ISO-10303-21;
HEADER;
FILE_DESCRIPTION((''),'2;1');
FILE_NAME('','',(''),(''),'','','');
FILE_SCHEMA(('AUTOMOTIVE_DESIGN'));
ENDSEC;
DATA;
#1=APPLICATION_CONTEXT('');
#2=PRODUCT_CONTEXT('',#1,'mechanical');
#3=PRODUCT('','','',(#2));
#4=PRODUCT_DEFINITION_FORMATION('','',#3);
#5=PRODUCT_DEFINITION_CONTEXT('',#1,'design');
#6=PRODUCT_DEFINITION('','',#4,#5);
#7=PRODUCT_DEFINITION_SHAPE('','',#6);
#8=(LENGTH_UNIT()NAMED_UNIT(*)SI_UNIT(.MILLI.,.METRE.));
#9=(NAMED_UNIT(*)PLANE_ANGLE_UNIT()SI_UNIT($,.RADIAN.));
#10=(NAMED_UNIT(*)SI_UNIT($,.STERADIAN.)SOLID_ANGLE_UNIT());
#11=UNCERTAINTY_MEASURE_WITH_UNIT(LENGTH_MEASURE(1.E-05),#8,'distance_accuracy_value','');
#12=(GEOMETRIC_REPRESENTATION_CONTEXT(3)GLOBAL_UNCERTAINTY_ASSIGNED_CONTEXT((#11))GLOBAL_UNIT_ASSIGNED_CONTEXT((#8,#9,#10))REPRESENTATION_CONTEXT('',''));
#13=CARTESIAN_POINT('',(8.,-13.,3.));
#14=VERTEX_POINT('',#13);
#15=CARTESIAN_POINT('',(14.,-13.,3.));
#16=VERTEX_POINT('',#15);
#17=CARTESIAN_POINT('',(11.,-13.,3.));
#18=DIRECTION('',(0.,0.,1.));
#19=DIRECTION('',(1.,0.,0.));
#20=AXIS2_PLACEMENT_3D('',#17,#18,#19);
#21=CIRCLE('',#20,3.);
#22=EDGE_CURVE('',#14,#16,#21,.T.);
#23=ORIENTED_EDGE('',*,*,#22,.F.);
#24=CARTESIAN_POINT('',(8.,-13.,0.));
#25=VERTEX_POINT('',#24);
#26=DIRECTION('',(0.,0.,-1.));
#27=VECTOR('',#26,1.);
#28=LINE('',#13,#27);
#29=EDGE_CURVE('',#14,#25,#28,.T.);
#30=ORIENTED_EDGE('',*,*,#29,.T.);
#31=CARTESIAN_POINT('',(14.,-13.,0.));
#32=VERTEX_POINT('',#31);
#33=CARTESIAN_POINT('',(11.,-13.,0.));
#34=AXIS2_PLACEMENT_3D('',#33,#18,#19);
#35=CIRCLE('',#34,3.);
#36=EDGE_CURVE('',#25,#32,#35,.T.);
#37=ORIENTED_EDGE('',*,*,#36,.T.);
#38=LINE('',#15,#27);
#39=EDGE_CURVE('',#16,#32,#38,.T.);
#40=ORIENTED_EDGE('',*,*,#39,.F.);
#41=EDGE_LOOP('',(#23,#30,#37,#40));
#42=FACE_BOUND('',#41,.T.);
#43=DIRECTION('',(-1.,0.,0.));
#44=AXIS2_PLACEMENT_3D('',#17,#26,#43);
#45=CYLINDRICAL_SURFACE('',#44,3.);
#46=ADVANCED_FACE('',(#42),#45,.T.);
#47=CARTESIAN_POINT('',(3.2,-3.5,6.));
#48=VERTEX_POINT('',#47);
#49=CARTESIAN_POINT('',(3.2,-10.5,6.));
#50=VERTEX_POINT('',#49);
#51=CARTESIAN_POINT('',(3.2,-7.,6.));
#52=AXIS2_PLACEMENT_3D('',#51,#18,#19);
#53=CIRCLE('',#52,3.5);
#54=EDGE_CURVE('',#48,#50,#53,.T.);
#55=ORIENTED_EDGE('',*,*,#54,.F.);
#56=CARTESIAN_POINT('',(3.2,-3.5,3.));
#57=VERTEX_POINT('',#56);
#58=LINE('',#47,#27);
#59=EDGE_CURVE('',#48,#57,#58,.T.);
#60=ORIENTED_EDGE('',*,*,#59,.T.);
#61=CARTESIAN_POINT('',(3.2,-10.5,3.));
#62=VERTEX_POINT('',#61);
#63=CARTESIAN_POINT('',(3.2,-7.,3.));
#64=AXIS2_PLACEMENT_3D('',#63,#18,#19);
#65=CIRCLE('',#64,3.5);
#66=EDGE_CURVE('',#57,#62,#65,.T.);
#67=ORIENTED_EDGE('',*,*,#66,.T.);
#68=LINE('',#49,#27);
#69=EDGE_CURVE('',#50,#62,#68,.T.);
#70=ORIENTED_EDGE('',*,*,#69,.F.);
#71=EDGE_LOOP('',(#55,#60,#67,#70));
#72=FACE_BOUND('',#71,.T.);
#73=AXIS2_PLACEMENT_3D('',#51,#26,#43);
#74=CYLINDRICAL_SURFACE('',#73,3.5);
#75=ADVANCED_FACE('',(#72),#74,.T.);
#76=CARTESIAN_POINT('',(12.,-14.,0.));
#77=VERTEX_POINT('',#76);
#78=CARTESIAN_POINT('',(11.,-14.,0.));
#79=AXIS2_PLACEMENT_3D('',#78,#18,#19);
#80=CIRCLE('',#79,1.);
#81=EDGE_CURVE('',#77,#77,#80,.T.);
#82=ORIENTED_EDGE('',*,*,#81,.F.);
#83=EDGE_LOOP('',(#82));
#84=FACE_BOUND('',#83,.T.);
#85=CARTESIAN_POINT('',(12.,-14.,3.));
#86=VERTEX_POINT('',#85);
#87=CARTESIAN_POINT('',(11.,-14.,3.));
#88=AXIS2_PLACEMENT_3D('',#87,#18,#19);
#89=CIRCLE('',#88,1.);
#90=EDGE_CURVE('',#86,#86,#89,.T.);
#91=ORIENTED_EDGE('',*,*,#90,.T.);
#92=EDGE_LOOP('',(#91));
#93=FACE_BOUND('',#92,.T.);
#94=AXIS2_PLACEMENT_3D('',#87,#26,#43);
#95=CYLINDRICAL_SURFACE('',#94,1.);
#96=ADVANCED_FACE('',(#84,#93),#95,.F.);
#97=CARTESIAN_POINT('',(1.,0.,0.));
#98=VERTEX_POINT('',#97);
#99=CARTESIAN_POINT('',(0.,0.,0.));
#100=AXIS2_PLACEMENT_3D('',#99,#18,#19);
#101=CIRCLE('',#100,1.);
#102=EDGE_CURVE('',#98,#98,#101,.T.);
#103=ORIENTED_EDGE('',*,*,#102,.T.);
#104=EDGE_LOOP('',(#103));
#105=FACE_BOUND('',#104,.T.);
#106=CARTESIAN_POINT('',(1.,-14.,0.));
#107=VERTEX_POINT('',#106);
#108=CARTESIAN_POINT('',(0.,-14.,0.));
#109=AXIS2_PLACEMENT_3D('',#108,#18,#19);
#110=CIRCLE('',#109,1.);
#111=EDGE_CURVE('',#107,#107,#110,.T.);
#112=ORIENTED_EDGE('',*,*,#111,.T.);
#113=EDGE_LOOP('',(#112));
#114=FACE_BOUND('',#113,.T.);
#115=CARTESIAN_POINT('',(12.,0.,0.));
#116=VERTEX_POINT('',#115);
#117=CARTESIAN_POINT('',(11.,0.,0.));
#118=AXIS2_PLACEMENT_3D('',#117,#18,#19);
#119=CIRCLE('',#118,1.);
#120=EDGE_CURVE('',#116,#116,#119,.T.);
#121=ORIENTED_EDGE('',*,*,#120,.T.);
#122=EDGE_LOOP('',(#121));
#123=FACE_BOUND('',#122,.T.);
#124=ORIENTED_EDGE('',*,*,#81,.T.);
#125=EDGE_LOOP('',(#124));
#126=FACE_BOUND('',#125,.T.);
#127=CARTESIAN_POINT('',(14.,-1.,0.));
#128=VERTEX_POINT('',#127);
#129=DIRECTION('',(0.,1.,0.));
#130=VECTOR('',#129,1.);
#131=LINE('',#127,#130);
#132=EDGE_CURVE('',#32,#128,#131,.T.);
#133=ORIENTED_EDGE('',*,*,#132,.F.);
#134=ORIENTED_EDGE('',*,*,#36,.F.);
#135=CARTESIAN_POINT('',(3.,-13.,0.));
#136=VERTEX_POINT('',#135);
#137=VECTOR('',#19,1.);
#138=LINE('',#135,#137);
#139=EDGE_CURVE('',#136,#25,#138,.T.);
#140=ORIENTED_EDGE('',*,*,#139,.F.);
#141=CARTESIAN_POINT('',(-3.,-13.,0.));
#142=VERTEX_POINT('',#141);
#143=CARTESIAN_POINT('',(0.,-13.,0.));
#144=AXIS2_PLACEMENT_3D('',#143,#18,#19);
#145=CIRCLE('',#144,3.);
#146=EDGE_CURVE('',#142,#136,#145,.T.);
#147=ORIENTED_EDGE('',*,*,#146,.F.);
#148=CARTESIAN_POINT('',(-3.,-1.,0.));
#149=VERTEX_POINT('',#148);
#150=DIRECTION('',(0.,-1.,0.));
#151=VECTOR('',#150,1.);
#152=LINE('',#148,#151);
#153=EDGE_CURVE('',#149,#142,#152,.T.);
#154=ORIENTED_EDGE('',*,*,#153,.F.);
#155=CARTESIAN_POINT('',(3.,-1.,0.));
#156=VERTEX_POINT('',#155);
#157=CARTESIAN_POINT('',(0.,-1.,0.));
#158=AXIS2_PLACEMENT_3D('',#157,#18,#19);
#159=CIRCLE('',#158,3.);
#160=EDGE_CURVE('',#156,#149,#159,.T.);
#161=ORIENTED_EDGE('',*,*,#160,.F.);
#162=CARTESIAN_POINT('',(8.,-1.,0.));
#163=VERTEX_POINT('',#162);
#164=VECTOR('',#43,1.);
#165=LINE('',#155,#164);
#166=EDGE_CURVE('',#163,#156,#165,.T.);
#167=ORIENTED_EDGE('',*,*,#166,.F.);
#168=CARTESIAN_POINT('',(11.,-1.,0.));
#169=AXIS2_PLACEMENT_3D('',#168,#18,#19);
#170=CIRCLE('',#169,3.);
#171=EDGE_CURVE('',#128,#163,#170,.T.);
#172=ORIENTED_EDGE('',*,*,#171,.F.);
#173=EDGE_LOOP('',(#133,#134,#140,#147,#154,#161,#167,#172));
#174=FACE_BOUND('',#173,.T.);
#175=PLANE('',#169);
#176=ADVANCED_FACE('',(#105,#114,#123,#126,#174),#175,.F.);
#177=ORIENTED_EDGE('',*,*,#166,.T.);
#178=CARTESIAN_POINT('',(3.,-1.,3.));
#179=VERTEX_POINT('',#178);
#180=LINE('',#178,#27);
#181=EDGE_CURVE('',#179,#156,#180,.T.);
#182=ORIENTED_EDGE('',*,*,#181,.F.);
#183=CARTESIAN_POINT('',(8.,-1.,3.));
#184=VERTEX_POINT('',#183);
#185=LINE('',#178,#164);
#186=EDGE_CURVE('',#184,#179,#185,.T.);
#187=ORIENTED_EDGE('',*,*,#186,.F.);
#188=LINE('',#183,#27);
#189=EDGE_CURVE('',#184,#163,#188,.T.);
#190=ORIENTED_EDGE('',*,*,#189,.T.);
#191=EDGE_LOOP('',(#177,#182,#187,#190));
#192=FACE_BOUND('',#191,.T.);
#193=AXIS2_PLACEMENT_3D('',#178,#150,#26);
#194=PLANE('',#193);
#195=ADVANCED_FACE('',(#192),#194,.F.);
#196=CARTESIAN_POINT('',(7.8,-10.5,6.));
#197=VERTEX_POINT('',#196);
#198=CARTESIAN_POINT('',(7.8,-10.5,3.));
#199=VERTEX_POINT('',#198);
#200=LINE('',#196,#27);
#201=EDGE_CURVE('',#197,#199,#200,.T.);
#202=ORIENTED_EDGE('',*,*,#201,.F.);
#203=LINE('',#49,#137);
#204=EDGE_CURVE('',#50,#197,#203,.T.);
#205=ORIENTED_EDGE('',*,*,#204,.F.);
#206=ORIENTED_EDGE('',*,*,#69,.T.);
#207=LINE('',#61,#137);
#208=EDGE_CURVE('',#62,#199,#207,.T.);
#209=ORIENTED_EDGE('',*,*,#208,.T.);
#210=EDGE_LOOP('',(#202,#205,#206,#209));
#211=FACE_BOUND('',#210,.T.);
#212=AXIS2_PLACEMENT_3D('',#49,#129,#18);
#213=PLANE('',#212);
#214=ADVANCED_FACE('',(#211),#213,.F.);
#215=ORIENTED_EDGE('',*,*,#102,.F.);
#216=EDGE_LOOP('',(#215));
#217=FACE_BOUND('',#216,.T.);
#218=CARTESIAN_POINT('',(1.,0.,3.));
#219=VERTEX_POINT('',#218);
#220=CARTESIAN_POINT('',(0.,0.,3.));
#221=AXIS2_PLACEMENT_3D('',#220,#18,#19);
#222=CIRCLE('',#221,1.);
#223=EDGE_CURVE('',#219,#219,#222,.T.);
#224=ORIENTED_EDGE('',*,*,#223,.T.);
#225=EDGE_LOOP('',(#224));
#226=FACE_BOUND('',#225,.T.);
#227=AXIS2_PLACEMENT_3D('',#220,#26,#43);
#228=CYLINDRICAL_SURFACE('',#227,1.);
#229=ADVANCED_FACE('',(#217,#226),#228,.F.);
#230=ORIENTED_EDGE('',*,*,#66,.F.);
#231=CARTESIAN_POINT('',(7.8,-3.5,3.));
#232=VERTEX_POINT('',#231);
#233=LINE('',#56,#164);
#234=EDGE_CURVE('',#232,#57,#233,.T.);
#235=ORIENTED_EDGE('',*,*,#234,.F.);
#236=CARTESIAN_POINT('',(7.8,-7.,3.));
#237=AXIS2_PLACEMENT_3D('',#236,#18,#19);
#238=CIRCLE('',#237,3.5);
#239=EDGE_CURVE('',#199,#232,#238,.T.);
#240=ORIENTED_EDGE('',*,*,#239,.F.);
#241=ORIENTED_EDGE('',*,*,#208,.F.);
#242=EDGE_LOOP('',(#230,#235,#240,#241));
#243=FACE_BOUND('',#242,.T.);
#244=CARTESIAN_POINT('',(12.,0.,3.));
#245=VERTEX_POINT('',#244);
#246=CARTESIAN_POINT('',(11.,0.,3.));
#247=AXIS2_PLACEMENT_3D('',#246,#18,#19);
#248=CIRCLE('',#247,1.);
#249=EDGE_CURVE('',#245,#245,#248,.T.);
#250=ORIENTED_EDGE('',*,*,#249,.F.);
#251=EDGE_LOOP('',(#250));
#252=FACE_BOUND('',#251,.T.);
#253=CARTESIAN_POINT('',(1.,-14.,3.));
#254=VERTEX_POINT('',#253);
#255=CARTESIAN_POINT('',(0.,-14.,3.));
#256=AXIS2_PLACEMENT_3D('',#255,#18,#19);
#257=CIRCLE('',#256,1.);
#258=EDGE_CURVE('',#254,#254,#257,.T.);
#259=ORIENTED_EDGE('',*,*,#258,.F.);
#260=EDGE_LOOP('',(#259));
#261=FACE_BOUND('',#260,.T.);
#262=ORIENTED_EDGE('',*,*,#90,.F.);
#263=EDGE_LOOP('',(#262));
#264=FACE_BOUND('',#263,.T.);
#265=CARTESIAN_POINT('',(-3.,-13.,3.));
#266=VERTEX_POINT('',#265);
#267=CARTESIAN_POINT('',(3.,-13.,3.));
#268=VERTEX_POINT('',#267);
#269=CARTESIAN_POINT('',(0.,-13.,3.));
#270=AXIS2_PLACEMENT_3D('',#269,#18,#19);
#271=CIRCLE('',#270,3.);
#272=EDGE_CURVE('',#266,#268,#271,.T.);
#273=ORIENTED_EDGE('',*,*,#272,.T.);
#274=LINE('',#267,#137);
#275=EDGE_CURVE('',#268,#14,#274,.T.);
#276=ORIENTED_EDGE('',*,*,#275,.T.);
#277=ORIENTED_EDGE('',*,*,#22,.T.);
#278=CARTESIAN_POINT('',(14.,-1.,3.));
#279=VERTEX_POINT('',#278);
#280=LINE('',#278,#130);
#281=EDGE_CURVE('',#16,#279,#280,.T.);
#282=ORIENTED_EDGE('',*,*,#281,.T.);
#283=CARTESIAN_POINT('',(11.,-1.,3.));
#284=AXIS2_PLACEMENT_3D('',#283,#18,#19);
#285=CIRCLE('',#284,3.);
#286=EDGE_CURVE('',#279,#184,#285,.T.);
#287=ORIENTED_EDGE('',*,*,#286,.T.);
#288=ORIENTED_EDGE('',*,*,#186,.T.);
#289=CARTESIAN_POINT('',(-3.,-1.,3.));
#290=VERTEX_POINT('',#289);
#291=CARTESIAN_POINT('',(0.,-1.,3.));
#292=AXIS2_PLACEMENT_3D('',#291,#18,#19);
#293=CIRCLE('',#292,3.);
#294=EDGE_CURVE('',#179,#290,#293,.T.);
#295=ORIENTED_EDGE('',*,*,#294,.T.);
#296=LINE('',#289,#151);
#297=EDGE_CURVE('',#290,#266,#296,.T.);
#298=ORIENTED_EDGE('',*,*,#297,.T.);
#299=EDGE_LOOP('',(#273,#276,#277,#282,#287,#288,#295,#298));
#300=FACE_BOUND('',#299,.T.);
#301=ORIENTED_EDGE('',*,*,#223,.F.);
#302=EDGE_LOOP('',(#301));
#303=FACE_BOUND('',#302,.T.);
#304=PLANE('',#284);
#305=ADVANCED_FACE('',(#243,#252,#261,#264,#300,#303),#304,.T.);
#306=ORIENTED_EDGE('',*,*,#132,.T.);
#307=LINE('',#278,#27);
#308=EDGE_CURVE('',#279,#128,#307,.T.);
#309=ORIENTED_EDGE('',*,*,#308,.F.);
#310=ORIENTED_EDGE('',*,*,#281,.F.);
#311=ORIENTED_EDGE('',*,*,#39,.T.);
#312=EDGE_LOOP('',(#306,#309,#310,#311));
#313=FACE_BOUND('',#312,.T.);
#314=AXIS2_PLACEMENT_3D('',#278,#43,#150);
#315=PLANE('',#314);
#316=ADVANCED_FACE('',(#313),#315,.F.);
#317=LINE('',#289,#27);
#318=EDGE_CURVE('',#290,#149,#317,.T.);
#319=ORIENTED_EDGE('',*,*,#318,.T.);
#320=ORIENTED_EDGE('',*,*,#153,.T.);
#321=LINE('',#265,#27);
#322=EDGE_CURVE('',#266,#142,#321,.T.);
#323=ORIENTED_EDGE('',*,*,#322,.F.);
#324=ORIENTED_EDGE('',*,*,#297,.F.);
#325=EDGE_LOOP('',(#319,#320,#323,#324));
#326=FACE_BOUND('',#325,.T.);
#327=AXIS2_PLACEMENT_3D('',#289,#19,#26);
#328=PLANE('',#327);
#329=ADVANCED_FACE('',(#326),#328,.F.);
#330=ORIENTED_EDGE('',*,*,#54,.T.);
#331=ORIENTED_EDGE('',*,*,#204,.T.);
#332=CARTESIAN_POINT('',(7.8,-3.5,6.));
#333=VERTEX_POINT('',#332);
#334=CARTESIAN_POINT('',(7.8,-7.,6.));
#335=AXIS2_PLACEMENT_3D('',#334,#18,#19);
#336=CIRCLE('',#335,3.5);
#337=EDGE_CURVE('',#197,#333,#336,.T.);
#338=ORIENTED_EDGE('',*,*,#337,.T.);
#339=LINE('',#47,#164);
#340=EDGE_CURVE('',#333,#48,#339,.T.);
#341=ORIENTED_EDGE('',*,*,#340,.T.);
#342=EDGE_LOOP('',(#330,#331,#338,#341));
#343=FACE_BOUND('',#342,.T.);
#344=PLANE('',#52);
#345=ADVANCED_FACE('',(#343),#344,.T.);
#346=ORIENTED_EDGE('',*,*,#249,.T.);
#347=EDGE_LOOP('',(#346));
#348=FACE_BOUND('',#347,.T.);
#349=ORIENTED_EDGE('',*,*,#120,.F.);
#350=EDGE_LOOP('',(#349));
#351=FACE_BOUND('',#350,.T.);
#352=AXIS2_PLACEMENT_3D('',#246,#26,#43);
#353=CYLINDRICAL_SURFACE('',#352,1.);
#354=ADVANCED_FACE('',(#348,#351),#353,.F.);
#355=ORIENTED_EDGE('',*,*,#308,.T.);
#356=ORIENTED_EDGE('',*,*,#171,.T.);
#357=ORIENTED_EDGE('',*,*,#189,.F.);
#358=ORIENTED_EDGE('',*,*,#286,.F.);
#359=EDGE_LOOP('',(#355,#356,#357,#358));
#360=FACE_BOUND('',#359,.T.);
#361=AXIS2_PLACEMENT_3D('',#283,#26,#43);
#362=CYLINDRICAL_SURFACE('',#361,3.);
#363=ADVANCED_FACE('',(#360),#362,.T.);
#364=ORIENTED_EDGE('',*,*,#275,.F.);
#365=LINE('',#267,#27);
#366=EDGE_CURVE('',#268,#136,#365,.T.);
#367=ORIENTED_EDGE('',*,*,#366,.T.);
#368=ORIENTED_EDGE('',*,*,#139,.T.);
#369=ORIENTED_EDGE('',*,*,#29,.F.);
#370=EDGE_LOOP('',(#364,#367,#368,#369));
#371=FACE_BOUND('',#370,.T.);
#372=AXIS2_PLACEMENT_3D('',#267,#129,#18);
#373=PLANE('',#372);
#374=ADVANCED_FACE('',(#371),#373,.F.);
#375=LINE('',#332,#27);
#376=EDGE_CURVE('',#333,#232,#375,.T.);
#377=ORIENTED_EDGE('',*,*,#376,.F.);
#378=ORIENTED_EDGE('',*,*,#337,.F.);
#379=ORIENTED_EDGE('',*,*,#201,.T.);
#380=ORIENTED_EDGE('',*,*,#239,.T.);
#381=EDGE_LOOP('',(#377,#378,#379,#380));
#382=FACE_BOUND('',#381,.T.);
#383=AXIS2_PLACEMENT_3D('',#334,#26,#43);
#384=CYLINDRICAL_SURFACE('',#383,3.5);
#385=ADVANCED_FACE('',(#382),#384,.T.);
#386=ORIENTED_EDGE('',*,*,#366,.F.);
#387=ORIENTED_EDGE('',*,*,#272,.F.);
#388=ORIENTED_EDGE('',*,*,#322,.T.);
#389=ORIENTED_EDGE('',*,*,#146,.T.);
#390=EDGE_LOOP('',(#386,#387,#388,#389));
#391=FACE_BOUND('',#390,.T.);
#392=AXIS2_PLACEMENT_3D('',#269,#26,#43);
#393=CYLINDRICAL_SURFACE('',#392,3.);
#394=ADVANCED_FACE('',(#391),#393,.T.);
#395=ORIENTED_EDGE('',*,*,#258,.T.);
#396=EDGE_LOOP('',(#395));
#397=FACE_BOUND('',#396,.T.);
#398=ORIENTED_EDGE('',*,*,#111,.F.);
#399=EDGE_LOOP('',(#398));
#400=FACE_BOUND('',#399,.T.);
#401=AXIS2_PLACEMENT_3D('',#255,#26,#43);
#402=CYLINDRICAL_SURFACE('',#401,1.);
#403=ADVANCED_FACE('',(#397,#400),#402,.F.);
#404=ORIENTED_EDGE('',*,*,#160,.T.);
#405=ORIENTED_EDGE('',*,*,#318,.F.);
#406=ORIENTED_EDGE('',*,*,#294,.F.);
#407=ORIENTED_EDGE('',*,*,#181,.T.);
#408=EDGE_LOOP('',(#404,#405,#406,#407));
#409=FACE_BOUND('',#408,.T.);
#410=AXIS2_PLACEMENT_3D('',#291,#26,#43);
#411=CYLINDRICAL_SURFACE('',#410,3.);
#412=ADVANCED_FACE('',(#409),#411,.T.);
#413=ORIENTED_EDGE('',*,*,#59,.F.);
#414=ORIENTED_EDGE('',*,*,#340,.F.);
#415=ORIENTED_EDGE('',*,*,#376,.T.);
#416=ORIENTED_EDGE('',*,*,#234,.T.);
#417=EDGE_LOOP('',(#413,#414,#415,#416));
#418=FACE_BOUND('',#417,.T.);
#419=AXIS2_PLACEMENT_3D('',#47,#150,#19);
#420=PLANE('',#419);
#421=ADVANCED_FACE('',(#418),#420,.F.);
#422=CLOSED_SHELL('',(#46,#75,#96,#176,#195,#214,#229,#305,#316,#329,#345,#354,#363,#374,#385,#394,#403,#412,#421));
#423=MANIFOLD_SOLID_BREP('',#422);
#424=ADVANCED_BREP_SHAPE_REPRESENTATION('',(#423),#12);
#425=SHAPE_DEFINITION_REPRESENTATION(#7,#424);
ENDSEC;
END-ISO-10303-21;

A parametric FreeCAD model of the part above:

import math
import FreeCAD as App
import Part
import Sketcher

doc = App.newDocument("Part")
body = doc.addObject("PartDesign::Body", "Body")

sketch1 = body.newObject("Sketcher::SketchObject", "Sketch")
sketch1.AttachmentSupport = (doc.getObject("XY_Plane"), [""])
sketch1.MapMode = "FlatFace"
sketch1.addGeometry([
    Part.LineSegment(App.Vector(3, -13, 0), App.Vector(8, -13, 0)),
    Part.ArcOfCircle(Part.Circle(App.Vector(11, -13, 0), App.Vector(0, 0, 1), 3), math.radians(180), math.radians(360)),
    Part.LineSegment(App.Vector(14, -13, 0), App.Vector(14, -1, 0)),
    Part.ArcOfCircle(Part.Circle(App.Vector(11, -1, 0), App.Vector(0, 0, 1), 3), math.radians(0), math.radians(180)),
    Part.LineSegment(App.Vector(8, -1, 0), App.Vector(3, -1, 0)),
    Part.ArcOfCircle(Part.Circle(App.Vector(0, -1, 0), App.Vector(0, 0, 1), 3), math.radians(0), math.radians(180)),
    Part.LineSegment(App.Vector(-3, -1, 0), App.Vector(-3, -13, 0)),
    Part.ArcOfCircle(Part.Circle(App.Vector(0, -13, 0), App.Vector(0, 0, 1), 3), math.radians(180), math.radians(360)),
    Part.Circle(App.Vector(0, -14, 0), App.Vector(0, 0, 1), 1),
    Part.Circle(App.Vector(11, -14, 0), App.Vector(0, 0, 1), 1),
    Part.Circle(App.Vector(0, 0, 0), App.Vector(0, 0, 1), 1),
    Part.Circle(App.Vector(11, 0, 0), App.Vector(0, 0, 1), 1),
], False)
sketch1.addConstraint([
    Sketcher.Constraint("Coincident", 0, 2, 1, 1),
    Sketcher.Constraint("Tangent", 1, 2, 2, 1),
    Sketcher.Constraint("Tangent", 2, 2, 3, 1),
    Sketcher.Constraint("Coincident", 3, 2, 4, 1),
    Sketcher.Constraint("Coincident", 4, 2, 5, 1),
    Sketcher.Constraint("Tangent", 5, 2, 6, 1),
    Sketcher.Constraint("Tangent", 6, 2, 7, 1),
    Sketcher.Constraint("Coincident", 7, 2, 0, 1),
    Sketcher.Constraint("Horizontal", 0),
    Sketcher.Constraint("Vertical", 2),
    Sketcher.Constraint("Horizontal", 4),
    Sketcher.Constraint("Vertical", 6),
    Sketcher.Constraint("Coincident", 10, 3, -1, 1),
    Sketcher.Constraint("Equal", 1, 3),
    Sketcher.Constraint("Equal", 3, 5),
    Sketcher.Constraint("Equal", 5, 7),
    Sketcher.Constraint("Equal", 8, 9),
    Sketcher.Constraint("Equal", 9, 10),
    Sketcher.Constraint("Equal", 10, 11),
    Sketcher.Constraint("Symmetric", 4, 2, 5, 2, -2),
    Sketcher.Constraint("PointOnObject", 8, 3, -2),
    Sketcher.Constraint("PointOnObject", 11, 3, -1),
    Sketcher.Constraint("Horizontal", 3, 3, 5, 3),
    Sketcher.Constraint("Horizontal", 1, 3, 7, 3),
    Sketcher.Constraint("Horizontal", 8, 3, 9, 3),
    Sketcher.Constraint("Horizontal", 7, 3, 0, 2),
    Sketcher.Constraint("Vertical", 3, 3, 9, 3),
    Sketcher.Constraint("Vertical", 9, 3, 11, 3),
    Sketcher.Constraint("Diameter", 8, 2.0),
    Sketcher.Constraint("Radius", 1, 3.0),
    Sketcher.Constraint("DistanceX", 0, 1, 0, 2, 5.0),
    Sketcher.Constraint("DistanceY", 2, 1, 2, 2, 12.0),
    Sketcher.Constraint("DistanceY", 1, 3, -1, 1, 13.0),
    Sketcher.Constraint("DistanceY", 8, 3, -1, 1, 14.0),
])
pad1 = body.newObject("PartDesign::Pad", "Pad")
pad1.Profile = sketch1
pad1.Length = 3

sketch2 = body.newObject("Sketcher::SketchObject", "Sketch001")
sketch2.AttachmentSupport = (doc.getObject("XY_Plane"), [""])
sketch2.MapMode = "FlatFace"
sketch2.AttachmentOffset = App.Placement(App.Vector(0, 0, 3), App.Rotation())
sketch2.addGeometry([
    Part.LineSegment(App.Vector(7.8, -3.5, 0), App.Vector(3.2, -3.5, 0)),
    Part.ArcOfCircle(Part.Circle(App.Vector(3.2, -7, 0), App.Vector(0, 0, 1), 3.5), math.radians(90), math.radians(270)),
    Part.LineSegment(App.Vector(3.2, -10.5, 0), App.Vector(7.8, -10.5, 0)),
    Part.ArcOfCircle(Part.Circle(App.Vector(7.8, -7, 0), App.Vector(0, 0, 1), 3.5), math.radians(-90), math.radians(90)),
], False)
sketch2.addConstraint([
    Sketcher.Constraint("Tangent", 0, 2, 1, 1),
    Sketcher.Constraint("Tangent", 1, 2, 2, 1),
    Sketcher.Constraint("Tangent", 2, 2, 3, 1),
    Sketcher.Constraint("Tangent", 3, 2, 0, 1),
    Sketcher.Constraint("Horizontal", 0),
    Sketcher.Constraint("Horizontal", 2),
    Sketcher.Constraint("Radius", 1, 3.5),
    Sketcher.Constraint("DistanceX", 0, 2, 0, 1, 4.6),
    Sketcher.Constraint("DistanceY", 1, 3, -1, 1, 7.0),
    Sketcher.Constraint("DistanceX", -1, 1, 1, 3, 3.2),
])
pad2 = body.newObject("PartDesign::Pad", "Pad001")
pad2.Profile = sketch2
pad2.Length = 3

doc.recompute()
